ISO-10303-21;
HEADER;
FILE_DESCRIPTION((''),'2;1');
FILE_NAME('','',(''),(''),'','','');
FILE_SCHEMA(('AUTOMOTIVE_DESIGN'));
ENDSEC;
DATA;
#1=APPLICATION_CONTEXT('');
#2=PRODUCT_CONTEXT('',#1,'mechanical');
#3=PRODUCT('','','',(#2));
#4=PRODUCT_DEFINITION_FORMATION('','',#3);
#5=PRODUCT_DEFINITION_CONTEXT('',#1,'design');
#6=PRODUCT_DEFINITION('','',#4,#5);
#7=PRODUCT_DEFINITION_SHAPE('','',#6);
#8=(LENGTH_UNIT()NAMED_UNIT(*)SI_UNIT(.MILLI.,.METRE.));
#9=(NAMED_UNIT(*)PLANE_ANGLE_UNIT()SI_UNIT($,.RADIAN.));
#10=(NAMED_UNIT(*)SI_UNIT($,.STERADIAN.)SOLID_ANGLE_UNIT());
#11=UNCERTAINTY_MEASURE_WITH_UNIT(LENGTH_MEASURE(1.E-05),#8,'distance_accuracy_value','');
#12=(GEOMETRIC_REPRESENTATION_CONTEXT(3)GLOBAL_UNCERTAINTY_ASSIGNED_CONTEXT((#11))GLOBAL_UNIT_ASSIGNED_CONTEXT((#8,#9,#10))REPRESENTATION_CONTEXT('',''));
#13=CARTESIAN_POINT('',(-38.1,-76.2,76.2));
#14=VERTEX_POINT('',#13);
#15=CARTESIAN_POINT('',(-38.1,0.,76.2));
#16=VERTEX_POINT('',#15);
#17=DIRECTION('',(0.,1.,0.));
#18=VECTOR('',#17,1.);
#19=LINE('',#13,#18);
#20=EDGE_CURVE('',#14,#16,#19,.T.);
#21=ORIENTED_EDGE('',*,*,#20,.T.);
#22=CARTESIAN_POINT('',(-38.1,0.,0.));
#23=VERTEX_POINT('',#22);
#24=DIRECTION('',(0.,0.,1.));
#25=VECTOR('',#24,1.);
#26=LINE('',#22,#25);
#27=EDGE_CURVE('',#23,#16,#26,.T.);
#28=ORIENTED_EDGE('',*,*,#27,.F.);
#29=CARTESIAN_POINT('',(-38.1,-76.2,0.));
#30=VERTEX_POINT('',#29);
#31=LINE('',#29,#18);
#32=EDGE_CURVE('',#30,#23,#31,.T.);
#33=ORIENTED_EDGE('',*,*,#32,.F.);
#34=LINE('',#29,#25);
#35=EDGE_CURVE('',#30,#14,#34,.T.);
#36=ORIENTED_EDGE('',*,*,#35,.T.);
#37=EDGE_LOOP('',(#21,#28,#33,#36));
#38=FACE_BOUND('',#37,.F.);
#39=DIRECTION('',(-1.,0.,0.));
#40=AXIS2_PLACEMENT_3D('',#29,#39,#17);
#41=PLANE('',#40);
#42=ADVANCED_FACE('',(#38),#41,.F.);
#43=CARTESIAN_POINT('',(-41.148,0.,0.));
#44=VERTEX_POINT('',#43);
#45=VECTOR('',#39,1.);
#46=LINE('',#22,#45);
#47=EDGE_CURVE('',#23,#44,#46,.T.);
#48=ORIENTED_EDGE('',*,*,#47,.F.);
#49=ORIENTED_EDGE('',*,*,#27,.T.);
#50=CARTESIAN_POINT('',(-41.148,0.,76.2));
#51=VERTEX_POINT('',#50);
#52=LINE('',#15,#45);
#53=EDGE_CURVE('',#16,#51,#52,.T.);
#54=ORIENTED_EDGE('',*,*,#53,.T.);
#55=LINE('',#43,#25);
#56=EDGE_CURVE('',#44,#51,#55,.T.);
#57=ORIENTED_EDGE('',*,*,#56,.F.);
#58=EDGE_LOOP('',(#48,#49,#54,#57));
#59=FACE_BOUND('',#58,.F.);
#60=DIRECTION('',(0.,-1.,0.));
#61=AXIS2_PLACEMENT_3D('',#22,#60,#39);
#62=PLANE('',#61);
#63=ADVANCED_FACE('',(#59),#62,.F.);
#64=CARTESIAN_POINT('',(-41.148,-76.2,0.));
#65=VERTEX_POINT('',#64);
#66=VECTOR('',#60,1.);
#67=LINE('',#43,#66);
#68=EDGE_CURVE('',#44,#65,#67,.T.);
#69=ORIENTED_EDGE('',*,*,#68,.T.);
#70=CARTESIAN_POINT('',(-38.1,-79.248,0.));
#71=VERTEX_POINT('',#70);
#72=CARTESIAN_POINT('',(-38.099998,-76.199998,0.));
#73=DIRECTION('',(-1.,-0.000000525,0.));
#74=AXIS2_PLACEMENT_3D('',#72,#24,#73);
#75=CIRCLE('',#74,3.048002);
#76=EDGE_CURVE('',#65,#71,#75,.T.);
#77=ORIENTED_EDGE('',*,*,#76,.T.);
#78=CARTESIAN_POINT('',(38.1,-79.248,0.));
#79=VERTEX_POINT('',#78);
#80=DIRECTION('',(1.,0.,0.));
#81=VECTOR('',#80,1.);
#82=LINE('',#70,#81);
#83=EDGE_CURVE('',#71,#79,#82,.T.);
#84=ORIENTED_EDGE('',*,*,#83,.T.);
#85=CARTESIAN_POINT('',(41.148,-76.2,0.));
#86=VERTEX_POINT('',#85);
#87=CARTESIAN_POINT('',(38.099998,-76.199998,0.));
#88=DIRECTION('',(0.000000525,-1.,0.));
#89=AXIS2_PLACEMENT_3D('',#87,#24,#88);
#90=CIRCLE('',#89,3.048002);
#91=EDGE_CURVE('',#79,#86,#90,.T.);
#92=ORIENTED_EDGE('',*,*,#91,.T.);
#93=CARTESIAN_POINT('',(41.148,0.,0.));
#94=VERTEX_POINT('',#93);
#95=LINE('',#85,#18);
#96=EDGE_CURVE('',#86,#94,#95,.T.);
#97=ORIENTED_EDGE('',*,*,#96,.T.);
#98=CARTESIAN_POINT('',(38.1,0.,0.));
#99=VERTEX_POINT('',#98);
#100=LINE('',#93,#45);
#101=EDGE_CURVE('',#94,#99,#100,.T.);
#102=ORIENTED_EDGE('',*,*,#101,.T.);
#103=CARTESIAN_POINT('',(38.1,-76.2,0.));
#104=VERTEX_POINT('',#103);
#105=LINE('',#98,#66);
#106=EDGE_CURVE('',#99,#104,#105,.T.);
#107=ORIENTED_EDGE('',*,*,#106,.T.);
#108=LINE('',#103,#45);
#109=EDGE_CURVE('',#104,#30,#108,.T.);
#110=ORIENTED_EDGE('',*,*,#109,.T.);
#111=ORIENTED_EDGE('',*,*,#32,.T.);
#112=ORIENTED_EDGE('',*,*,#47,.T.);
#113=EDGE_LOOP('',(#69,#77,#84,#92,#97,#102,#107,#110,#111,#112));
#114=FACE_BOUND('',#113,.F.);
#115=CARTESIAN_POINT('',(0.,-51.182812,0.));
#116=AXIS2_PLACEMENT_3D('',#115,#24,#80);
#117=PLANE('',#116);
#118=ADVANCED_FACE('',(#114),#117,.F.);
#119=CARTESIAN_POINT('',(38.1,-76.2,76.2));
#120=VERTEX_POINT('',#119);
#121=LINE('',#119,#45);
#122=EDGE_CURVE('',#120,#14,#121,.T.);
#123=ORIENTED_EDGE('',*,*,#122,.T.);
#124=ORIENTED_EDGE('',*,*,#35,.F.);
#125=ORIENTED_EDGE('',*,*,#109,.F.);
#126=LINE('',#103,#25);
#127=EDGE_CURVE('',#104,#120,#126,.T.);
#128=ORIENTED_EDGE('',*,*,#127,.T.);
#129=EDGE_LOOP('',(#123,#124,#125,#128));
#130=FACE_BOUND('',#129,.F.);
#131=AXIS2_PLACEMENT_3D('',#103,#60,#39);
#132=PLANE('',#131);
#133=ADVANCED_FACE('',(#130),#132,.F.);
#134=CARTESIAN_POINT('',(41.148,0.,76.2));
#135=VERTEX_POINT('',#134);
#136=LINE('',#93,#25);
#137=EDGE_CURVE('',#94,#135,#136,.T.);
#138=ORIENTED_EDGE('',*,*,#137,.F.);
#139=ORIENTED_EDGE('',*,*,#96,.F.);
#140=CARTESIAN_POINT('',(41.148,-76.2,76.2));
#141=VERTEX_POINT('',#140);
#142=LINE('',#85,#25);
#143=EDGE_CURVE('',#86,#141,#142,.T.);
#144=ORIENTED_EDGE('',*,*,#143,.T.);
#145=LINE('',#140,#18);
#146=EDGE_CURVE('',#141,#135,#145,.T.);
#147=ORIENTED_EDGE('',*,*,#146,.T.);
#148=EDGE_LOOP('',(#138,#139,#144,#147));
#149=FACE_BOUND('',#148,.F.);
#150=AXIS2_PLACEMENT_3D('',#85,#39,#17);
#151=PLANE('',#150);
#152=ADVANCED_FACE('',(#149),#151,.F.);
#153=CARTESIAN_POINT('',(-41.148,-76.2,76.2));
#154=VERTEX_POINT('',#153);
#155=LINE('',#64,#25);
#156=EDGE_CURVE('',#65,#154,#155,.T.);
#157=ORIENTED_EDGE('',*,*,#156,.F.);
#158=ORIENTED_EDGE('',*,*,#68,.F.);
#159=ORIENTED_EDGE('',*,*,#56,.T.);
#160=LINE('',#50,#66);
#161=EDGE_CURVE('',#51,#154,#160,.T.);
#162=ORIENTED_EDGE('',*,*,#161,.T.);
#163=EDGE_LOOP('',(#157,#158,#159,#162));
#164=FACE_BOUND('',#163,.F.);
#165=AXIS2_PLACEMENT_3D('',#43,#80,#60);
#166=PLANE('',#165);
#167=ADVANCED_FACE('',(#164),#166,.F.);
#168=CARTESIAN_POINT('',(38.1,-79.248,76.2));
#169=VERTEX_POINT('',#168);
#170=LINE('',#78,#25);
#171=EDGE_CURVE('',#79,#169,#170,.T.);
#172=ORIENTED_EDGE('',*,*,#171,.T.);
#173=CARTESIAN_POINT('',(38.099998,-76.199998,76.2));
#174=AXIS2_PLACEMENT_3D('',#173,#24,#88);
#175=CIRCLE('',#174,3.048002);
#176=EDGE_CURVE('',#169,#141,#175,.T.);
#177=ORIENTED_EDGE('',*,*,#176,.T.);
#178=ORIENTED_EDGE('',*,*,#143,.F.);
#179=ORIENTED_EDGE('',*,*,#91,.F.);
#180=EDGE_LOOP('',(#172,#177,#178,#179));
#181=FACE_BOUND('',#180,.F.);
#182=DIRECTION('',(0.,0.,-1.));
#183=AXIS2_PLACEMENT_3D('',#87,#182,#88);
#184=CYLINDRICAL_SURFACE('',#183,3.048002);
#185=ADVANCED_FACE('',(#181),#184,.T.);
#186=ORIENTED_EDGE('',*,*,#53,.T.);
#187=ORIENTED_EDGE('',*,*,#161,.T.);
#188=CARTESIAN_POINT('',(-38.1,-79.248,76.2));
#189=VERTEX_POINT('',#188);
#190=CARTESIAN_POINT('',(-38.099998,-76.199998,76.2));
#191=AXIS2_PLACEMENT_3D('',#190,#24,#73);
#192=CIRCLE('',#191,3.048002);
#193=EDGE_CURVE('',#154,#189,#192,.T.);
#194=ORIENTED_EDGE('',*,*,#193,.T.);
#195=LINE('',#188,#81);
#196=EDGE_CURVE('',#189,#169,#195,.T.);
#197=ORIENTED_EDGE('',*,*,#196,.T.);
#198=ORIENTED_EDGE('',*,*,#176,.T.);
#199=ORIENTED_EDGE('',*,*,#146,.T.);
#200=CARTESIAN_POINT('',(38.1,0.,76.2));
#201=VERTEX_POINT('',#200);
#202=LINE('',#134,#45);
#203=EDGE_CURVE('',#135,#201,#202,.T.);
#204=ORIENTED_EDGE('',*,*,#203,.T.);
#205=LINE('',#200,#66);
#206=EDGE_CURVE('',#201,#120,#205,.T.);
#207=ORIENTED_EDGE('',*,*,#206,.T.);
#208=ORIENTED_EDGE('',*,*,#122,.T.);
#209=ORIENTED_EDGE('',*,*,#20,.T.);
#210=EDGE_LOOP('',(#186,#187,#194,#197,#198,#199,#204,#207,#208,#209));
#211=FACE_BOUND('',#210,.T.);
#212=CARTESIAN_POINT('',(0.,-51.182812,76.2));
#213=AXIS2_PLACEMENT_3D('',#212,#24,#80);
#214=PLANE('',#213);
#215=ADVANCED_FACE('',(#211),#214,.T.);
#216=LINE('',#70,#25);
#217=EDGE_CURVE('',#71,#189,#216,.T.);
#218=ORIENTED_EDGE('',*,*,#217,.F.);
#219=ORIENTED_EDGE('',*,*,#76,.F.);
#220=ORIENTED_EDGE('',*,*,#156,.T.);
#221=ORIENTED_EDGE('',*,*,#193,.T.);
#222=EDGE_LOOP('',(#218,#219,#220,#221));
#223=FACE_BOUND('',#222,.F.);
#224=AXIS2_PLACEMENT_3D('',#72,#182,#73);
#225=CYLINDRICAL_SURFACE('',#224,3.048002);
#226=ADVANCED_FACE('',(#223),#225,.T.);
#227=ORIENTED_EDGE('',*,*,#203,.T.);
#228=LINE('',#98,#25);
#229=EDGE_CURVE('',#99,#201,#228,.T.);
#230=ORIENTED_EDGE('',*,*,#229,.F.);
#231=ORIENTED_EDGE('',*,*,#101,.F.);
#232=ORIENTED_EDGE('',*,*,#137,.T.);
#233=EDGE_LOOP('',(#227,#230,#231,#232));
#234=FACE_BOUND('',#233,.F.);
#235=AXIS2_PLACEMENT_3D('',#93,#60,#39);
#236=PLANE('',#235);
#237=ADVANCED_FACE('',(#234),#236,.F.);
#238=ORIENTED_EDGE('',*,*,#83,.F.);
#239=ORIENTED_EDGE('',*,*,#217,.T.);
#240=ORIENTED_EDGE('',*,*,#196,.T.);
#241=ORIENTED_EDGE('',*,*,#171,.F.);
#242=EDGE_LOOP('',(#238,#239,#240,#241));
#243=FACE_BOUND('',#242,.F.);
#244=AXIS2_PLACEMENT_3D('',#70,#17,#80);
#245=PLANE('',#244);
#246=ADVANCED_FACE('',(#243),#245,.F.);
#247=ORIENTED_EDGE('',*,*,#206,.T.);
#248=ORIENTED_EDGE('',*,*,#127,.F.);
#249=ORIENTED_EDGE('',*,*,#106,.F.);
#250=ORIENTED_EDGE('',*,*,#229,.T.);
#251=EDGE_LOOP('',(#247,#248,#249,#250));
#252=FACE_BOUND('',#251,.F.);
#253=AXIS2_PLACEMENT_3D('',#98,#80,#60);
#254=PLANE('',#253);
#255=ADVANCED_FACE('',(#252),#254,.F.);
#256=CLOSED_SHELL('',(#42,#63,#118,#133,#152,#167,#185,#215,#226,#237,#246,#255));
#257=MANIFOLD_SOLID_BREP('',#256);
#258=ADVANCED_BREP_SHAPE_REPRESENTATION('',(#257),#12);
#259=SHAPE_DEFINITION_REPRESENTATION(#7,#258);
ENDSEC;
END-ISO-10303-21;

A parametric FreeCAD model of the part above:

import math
import FreeCAD as App
import Part
import Sketcher
from FreeCAD import Vector
Q = App.Units.Quantity

doc = App.newDocument("Part")
body = doc.addObject("PartDesign::Body", "Body")

sketch1 = doc.addObject("Sketcher::SketchObject", "Sketch")
body.addObject(sketch1)
sketch1.AttachmentSupport = (doc.XY_Plane, [""])
sketch1.MapMode = "FlatFace"
sketch1.addGeometry(Part.LineSegment(Vector(-38.1, -76.2, 0), Vector(-38.1, 0, 0)), False)
sketch1.addGeometry(Part.LineSegment(Vector(-38.1, 0, 0), Vector(-41.1, 0, 0)), False)
sketch1.addGeometry(Part.LineSegment(Vector(-41.1, 0, 0), Vector(-41.1, -76.2, 0)), False)
sketch1.addGeometry(Part.ArcOfCircle(Part.Circle(Vector(-38.1, -76.2, 0), Vector(0, 0, 1), 3), math.radians(-180), math.radians(-90)), False)
sketch1.addGeometry(Part.LineSegment(Vector(-38.1, -79.2, 0), Vector(38.1, -79.2, 0)), False)
sketch1.addGeometry(Part.ArcOfCircle(Part.Circle(Vector(38.1, -76.2, 0), Vector(0, 0, 1), 3), math.radians(-90), math.radians(0)), False)
sketch1.addGeometry(Part.LineSegment(Vector(41.1, -76.2, 0), Vector(41.1, 0, 0)), False)
sketch1.addGeometry(Part.LineSegment(Vector(41.1, 0, 0), Vector(38.1, 0, 0)), False)
sketch1.addGeometry(Part.LineSegment(Vector(38.1, 0, 0), Vector(38.1, -76.2, 0)), False)
sketch1.addGeometry(Part.LineSegment(Vector(38.1, -76.2, 0), Vector(-38.1, -76.2, 0)), False)
sketch1.addConstraint(Sketcher.Constraint("Coincident", 0, 2, 1, 1))
sketch1.addConstraint(Sketcher.Constraint("Coincident", 1, 2, 2, 1))
sketch1.addConstraint(Sketcher.Constraint("Tangent", 2, 2, 3, 1))
sketch1.addConstraint(Sketcher.Constraint("Tangent", 3, 2, 4, 1))
sketch1.addConstraint(Sketcher.Constraint("Tangent", 4, 2, 5, 1))
sketch1.addConstraint(Sketcher.Constraint("Tangent", 5, 2, 6, 1))
sketch1.addConstraint(Sketcher.Constraint("Coincident", 6, 2, 7, 1))
sketch1.addConstraint(Sketcher.Constraint("Coincident", 7, 2, 8, 1))
sketch1.addConstraint(Sketcher.Constraint("Coincident", 8, 2, 9, 1))
sketch1.addConstraint(Sketcher.Constraint("Coincident", 9, 2, 0, 1))
sketch1.addConstraint(Sketcher.Constraint("Vertical", 0))
sketch1.addConstraint(Sketcher.Constraint("Horizontal", 1))
sketch1.addConstraint(Sketcher.Constraint("Vertical", 2))
sketch1.addConstraint(Sketcher.Constraint("Horizontal", 4))
sketch1.addConstraint(Sketcher.Constraint("Vertical", 6))
sketch1.addConstraint(Sketcher.Constraint("Horizontal", 7))
sketch1.addConstraint(Sketcher.Constraint("Vertical", 8))
sketch1.addConstraint(Sketcher.Constraint("Horizontal", 9))
sketch1.addConstraint(Sketcher.Constraint("Coincident", 8, 2, 5, 3))
sketch1.addConstraint(Sketcher.Constraint("Coincident", 9, 2, 3, 3))
sketch1.addConstraint(Sketcher.Constraint("Symmetric", 1, 2, 6, 2, -1, 1))
sketch1.addConstraint(Sketcher.Constraint("PointOnObject", 0, 2, -1))
sketch1.addConstraint(Sketcher.Constraint("Equal", 9, 0))
sketch1.addConstraint(Sketcher.Constraint("DistanceX", 4, 1, 4, 2, Q("3 in")))
sketch1.addConstraint(Sketcher.Constraint("Radius", 3, Q("0.1200001 in")))
pad1 = doc.addObject("PartDesign::Pad", "Pad")
body.addObject(pad1)
pad1.Profile = sketch1
pad1.Length = Q("3 in")

doc.recompute()
